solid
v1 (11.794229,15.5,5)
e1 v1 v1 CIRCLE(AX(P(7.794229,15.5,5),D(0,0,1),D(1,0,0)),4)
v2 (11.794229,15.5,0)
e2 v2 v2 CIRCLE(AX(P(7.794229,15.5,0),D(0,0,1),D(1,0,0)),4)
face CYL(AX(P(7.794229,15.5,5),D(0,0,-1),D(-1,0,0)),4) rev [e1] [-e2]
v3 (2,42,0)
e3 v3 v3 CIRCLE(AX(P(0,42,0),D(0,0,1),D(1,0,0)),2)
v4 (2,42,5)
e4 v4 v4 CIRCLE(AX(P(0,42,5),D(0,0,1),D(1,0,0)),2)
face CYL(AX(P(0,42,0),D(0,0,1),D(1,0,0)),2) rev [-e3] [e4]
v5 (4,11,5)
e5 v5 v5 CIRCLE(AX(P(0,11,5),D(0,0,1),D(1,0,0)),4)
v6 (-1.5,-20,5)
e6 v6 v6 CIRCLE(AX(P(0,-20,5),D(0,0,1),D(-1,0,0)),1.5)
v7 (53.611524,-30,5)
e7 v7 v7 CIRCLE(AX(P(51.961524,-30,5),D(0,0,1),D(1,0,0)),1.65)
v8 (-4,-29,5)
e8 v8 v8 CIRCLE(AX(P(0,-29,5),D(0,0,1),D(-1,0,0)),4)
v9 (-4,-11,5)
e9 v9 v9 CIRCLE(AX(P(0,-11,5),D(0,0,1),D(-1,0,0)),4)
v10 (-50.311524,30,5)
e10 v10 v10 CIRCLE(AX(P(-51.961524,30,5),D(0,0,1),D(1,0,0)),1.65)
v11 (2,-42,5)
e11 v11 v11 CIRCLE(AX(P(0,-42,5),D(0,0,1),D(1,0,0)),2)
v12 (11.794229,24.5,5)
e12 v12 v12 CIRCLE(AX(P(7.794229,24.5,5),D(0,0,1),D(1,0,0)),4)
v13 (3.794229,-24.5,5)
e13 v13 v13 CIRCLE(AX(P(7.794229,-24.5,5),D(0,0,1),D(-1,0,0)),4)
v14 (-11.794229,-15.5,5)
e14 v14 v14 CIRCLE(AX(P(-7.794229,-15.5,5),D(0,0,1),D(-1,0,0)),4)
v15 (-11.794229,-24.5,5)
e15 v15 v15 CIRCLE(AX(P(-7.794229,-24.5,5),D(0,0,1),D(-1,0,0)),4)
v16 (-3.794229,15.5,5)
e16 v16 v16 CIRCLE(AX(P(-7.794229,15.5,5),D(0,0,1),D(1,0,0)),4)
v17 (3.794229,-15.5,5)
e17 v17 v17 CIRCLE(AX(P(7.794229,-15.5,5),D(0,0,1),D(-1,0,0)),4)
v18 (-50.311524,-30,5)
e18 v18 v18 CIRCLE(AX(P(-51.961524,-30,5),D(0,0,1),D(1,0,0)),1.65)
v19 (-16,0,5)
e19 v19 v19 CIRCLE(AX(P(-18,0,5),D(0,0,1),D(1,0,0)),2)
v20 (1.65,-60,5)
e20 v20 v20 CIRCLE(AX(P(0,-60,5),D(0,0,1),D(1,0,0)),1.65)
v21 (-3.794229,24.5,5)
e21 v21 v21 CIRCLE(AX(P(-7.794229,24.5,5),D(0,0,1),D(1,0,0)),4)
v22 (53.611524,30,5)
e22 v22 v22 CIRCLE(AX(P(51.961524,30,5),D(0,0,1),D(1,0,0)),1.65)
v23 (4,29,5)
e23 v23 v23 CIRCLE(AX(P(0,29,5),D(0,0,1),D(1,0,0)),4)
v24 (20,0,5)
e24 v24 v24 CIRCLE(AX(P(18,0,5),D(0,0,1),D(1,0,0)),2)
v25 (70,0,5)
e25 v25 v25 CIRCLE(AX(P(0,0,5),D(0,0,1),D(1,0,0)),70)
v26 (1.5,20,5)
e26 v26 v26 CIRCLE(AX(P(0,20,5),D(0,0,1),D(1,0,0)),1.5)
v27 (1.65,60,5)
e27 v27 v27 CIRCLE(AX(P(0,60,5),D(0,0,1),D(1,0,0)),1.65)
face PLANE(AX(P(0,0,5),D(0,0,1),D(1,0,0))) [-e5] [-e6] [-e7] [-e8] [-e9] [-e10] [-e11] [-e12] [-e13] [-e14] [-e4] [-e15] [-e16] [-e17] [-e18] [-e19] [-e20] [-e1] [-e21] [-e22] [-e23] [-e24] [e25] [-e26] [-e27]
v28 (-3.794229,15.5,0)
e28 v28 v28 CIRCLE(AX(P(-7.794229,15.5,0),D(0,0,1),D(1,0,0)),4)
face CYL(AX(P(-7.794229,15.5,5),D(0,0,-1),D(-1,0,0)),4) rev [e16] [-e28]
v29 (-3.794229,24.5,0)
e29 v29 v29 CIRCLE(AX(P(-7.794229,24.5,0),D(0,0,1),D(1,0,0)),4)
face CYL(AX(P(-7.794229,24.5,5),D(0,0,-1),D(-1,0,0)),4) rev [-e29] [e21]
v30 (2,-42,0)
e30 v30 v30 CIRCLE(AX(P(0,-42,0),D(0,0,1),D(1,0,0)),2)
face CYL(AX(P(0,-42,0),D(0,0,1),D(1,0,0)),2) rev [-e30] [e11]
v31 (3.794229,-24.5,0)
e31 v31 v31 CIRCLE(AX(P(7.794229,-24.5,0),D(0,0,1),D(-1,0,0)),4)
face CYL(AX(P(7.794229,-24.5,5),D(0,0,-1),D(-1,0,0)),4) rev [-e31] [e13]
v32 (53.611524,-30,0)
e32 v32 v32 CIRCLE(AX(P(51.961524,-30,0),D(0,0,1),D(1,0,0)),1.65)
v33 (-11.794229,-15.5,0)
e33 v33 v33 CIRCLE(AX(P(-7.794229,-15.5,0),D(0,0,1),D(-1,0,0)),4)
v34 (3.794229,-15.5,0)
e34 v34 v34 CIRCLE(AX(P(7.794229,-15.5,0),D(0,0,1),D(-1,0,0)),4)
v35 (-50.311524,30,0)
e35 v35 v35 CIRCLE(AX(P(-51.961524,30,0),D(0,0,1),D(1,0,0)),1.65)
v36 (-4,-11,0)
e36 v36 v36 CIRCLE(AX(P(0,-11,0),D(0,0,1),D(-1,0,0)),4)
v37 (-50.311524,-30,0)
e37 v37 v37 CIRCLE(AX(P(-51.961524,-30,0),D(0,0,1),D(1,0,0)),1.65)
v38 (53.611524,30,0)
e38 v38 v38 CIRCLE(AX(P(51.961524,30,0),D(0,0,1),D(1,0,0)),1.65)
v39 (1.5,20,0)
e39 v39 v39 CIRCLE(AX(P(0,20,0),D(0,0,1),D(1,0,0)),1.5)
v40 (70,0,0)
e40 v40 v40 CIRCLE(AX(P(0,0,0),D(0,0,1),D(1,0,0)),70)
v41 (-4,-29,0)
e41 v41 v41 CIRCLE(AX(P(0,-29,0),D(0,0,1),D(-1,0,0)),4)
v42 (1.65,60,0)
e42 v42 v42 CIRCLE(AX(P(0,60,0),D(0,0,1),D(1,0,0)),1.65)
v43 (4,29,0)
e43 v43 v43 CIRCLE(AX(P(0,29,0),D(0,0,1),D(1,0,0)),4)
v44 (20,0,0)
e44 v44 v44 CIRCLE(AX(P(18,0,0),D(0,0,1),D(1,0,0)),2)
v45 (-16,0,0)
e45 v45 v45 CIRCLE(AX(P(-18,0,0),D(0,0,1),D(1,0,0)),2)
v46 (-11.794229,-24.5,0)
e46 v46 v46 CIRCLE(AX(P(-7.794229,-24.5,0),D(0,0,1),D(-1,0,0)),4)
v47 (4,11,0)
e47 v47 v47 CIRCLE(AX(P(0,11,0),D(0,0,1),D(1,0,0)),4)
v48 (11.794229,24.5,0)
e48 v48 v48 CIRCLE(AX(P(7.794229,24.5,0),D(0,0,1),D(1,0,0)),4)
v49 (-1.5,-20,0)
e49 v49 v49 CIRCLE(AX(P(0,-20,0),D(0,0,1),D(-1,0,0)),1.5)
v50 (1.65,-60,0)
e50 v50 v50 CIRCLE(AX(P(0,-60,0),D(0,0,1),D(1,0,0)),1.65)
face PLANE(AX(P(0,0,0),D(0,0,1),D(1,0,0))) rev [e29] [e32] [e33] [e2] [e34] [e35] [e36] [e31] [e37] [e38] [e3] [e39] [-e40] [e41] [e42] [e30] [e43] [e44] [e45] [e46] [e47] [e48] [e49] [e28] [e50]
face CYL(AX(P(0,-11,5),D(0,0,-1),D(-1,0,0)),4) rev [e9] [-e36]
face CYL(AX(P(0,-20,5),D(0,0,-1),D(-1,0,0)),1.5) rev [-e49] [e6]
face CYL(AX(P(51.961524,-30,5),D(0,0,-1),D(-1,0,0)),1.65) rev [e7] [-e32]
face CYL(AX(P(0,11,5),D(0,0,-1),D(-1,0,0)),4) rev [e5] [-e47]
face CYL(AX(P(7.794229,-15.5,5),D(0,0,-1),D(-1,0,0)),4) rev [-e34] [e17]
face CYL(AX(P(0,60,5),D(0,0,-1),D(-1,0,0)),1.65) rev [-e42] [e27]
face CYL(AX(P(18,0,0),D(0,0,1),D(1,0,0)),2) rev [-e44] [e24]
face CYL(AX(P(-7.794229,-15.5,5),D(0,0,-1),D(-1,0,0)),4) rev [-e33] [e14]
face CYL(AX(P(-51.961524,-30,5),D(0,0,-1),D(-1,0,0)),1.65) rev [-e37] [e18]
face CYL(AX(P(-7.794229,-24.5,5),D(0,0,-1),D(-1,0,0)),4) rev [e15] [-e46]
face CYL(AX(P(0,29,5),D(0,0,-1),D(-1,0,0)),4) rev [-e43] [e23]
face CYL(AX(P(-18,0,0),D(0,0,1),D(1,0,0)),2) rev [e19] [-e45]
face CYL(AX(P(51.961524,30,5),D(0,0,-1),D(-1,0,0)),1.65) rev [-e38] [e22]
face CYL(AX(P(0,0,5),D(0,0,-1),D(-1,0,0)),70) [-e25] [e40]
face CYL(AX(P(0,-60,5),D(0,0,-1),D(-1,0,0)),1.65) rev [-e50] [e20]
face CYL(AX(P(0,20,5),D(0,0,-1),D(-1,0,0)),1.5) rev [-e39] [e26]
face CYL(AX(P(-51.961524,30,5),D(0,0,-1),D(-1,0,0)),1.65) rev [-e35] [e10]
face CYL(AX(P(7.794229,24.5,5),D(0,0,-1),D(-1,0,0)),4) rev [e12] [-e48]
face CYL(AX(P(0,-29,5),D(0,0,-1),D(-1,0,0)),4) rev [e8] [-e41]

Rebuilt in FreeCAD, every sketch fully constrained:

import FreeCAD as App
import Part
import Sketcher

doc = App.newDocument("Part")
params = doc.addObject("Spreadsheet::Sheet", "Params")
for row, (alias, value) in enumerate([
    ("sketch1_diameter", "140 mm"),
    ("sketch1_diameter2", "8 mm"),
    ("sketch1_diameter3", "3 mm"),
    ("sketch1_diameter4", "3.3 mm"),
    ("pad1_length", "5 mm"),
    ("sketch2_diameter", "4 mm"),
], start=1):
    params.set(f"A{row}", alias)
    params.set(f"B{row}", "=" + value)
    params.setAlias(f"B{row}", alias)

body = doc.addObject("PartDesign::Body", "Body")

# Sketch on XY plane
sketch1 = body.newObject("Sketcher::SketchObject", "Sketch")
sketch1.AttachmentSupport = (doc.getObject("XY_Plane"), [""])
sketch1.MapMode = "FlatFace"
sketch1.addGeometry([
    Part.Circle(App.Vector(0, 0, 0), App.Vector(0, 0, 1), 70),  # 0
    Part.Circle(App.Vector(0, -60, 0), App.Vector(0, 0, 1), 1.6),  # 1
    Part.Circle(App.Vector(-52, -30, 0), App.Vector(0, 0, 1), 1.6),  # 2
    Part.Circle(App.Vector(-7.8, -24.5, 0), App.Vector(0, 0, 1), 4),  # 3
    Part.Circle(App.Vector(0, -29, 0), App.Vector(0, 0, 1), 4),  # 4
    Part.Circle(App.Vector(-7.8, -15.5, 0), App.Vector(0, 0, 1), 4),  # 5
    Part.Circle(App.Vector(0, -20, 0), App.Vector(0, 0, 1), 1.5),  # 6
    Part.Circle(App.Vector(0, -11, 0), App.Vector(0, 0, 1), 4),  # 7
    Part.Circle(App.Vector(7.8, -24.5, 0), App.Vector(0, 0, 1), 4),  # 8
    Part.Circle(App.Vector(7.8, -15.5, 0), App.Vector(0, 0, 1), 4),  # 9
    Part.Circle(App.Vector(52, -30, 0), App.Vector(0, 0, 1), 1.6),  # 10
    Part.Circle(App.Vector(-52, 30, 0), App.Vector(0, 0, 1), 1.6),  # 11
    Part.Circle(App.Vector(0, 11, 0), App.Vector(0, 0, 1), 4),  # 12
    Part.Circle(App.Vector(-7.8, 15.5, 0), App.Vector(0, 0, 1), 4),  # 13
    Part.Circle(App.Vector(0, 20, 0), App.Vector(0, 0, 1), 1.5),  # 14
    Part.Circle(App.Vector(-7.8, 24.5, 0), App.Vector(0, 0, 1), 4),  # 15
    Part.Circle(App.Vector(0, 29, 0), App.Vector(0, 0, 1), 4),  # 16
    Part.Circle(App.Vector(0, 60, 0), App.Vector(0, 0, 1), 1.6),  # 17
    Part.Circle(App.Vector(7.8, 15.5, 0), App.Vector(0, 0, 1), 4),  # 18
    Part.Circle(App.Vector(7.8, 24.5, 0), App.Vector(0, 0, 1), 4),  # 19
    Part.Circle(App.Vector(52, 30, 0), App.Vector(0, 0, 1), 1.6),  # 20
], False)
sketch1.addConstraint([
    Sketcher.Constraint("Coincident", 0, 3, -1, 1),
    Sketcher.Constraint("Equal", 1, 2),
    Sketcher.Constraint("Equal", 3, 4),
    Sketcher.Constraint("Equal", 4, 5),
    Sketcher.Constraint("Equal", 5, 7),
    Sketcher.Constraint("Equal", 7, 8),
    Sketcher.Constraint("Equal", 8, 9),
    Sketcher.Constraint("Equal", 2, 10),
    Sketcher.Constraint("Equal", 10, 11),
    Sketcher.Constraint("Equal", 9, 12),
    Sketcher.Constraint("Equal", 12, 13),
    Sketcher.Constraint("Equal", 6, 14),
    Sketcher.Constraint("Equal", 13, 15),
    Sketcher.Constraint("Equal", 15, 16),
    Sketcher.Constraint("Equal", 11, 17),
    Sketcher.Constraint("Equal", 16, 18),
    Sketcher.Constraint("Equal", 18, 19),
    Sketcher.Constraint("Equal", 17, 20),
    Sketcher.Constraint("Symmetric", 10, 3, 11, 3, -1, 1),
    Sketcher.Constraint("Symmetric", 7, 3, 12, 3, -1, 1),
    Sketcher.Constraint("Symmetric", 9, 3, 13, 3, -1, 1),
    Sketcher.Constraint("Symmetric", 6, 3, 14, 3, -1, 1),
    Sketcher.Constraint("Symmetric", 8, 3, 15, 3, -1, 1),
    Sketcher.Constraint("Symmetric", 4, 3, 16, 3, -1, 1),
    Sketcher.Constraint("Symmetric", 1, 3, 17, 3, -1, 1),
    Sketcher.Constraint("Symmetric", 5, 3, 18, 3, -1, 1),
    Sketcher.Constraint("Symmetric", 3, 3, 19, 3, -1, 1),
    Sketcher.Constraint("Symmetric", 2, 3, 20, 3, -1, 1),
    Sketcher.Constraint("Symmetric", 3, 3, 8, 3, -2),
    Sketcher.Constraint("Symmetric", 5, 3, 9, 3, -2),
    Sketcher.Constraint("Symmetric", 2, 3, 10, 3, -2),
    Sketcher.Constraint("PointOnObject", 1, 3, -2),
    Sketcher.Constraint("PointOnObject", 4, 3, -2),
    Sketcher.Constraint("PointOnObject", 6, 3, -2),
    Sketcher.Constraint("PointOnObject", 7, 3, -2),
    Sketcher.Constraint("Vertical", 3, 3, 5, 3),
    Sketcher.Constraint("Diameter", 0, 140.0),
    Sketcher.Constraint("Diameter", 3, 8.0),
    Sketcher.Constraint("Diameter", 6, 3.0),
    Sketcher.Constraint("Diameter", 1, 3.3),
    Sketcher.Constraint("DistanceY", 1, 3, -1, 1, 60.0),
    Sketcher.Constraint("DistanceY", 2, 3, -1, 1, 30.0),
    Sketcher.Constraint("DistanceY", 4, 3, -1, 1, 29.0),
    Sketcher.Constraint("DistanceY", 6, 3, -1, 1, 20.0),
    Sketcher.Constraint("DistanceY", 7, 3, -1, 1, 11.0),
    Sketcher.Constraint("DistanceY", 3, 3, 5, 3, 9.0),
    Sketcher.Constraint("DistanceY", 5, 3, 13, 3, 31.0),
    Sketcher.Constraint("DistanceX", 3, 3, -1, 1, 7.794229),
    Sketcher.Constraint("DistanceX", 2, 3, -1, 1, 51.961524),
])
sketch1.setExpression("Constraints[36]", "Params.sketch1_diameter")
sketch1.setExpression("Constraints[37]", "Params.sketch1_diameter2")
sketch1.setExpression("Constraints[38]", "Params.sketch1_diameter3")
sketch1.setExpression("Constraints[39]", "Params.sketch1_diameter4")
pad1 = body.newObject("PartDesign::Pad", "Pad")
pad1.Profile = sketch1
pad1.setExpression("Length", "Params.pad1_length")

# Sketch on XY plane
sketch2 = body.newObject("Sketcher::SketchObject", "Sketch001")
sketch2.AttachmentSupport = (doc.getObject("XY_Plane"), [""])
sketch2.MapMode = "FlatFace"
sketch2.AttachmentOffset = App.Placement(App.Vector(0, 0, 5), App.Rotation())
sketch2.addGeometry([
    Part.Circle(App.Vector(0, 42, 0), App.Vector(0, 0, 1), 2),
    Part.Circle(App.Vector(0, -42, 0), App.Vector(0, 0, 1), 2),
    Part.Circle(App.Vector(18, 0, 0), App.Vector(0, 0, 1), 2),
    Part.Circle(App.Vector(-18, 0, 0), App.Vector(0, 0, 1), 2),
], False)
sketch2.addConstraint([
    Sketcher.Constraint("Equal", 0, 1),
    Sketcher.Constraint("Equal", 1, 2),
    Sketcher.Constraint("Equal", 2, 3),
    Sketcher.Constraint("Symmetric", 0, 3, 1, 3, -1, 1),
    Sketcher.Constraint("Symmetric", 2, 3, 3, 3, -1, 1),
    Sketcher.Constraint("PointOnObject", 0, 3, -2),
    Sketcher.Constraint("PointOnObject", 2, 3, -1),
    Sketcher.Constraint("Diameter", 0, 4.0),
    Sketcher.Constraint("DistanceY", -1, 1, 0, 3, 42.0),
    Sketcher.Constraint("DistanceX", -1, 1, 2, 3, 18.0),
])
sketch2.setExpression("Constraints[7]", "Params.sketch2_diameter")
pocket1 = body.newObject("PartDesign::Pocket", "Pocket")
pocket1.Profile = sketch2
pocket1.Type = "ThroughAll"

doc.recompute()
